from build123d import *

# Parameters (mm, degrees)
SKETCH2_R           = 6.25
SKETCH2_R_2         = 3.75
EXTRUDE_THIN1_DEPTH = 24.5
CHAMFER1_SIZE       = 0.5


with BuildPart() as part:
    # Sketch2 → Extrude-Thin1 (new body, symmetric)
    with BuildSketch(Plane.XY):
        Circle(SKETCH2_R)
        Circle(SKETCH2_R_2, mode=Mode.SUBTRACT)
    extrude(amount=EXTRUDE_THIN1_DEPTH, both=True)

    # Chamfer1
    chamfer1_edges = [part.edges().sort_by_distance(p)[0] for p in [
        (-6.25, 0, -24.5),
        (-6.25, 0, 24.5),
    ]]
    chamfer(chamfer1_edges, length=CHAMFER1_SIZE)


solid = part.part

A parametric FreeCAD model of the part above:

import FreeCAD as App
import Part
import Sketcher

V = App.Vector
Q = App.Units.Quantity


def edges_at(feature, points):
    """Names of the edges that pass closest to the given points."""
    edges = feature.Shape.Edges
    near = lambda p: min(range(len(edges)), key=lambda i: edges[i].distToShape(Part.Vertex(*p))[0])
    return sorted({f"Edge{near(p) + 1}" for p in points})

doc = App.newDocument("Part")
body = doc.addObject("PartDesign::Body", "Body")

# Sketch on XY plane
sketch1 = body.newObject("Sketcher::SketchObject", "Sketch")
sketch1.AttachmentSupport = (doc.getObject("XY_Plane"), [""])
sketch1.MapMode = "FlatFace"
sketch1.addGeometry([
    Part.Circle(V(0, 0, 0), V(0, 0, 1), 6.25),
    Part.Circle(V(0, 0, 0), V(0, 0, 1), 3.75),
], False)
sketch1.addConstraint([
    Sketcher.Constraint("Coincident", 0, 3, -1, 1),
    Sketcher.Constraint("Coincident", 1, 3, -1, 1),
    Sketcher.Constraint("Diameter", 0, Q("12.5 mm")),
    Sketcher.Constraint("Diameter", 1, Q("7.5 mm")),
])
pad1 = body.newObject("PartDesign::Pad", "Pad")
pad1.Profile = sketch1
pad1.Length = 49
pad1.Midplane = True
doc.recompute()

chamfer = body.newObject("PartDesign::Chamfer", "Chamfer")
chamfer.Base = (pad1, edges_at(pad1, [(-6.25, 0, -24.5), (-6.25, 0, 24.5)]))
chamfer.Size = 0.5

doc.recompute()
